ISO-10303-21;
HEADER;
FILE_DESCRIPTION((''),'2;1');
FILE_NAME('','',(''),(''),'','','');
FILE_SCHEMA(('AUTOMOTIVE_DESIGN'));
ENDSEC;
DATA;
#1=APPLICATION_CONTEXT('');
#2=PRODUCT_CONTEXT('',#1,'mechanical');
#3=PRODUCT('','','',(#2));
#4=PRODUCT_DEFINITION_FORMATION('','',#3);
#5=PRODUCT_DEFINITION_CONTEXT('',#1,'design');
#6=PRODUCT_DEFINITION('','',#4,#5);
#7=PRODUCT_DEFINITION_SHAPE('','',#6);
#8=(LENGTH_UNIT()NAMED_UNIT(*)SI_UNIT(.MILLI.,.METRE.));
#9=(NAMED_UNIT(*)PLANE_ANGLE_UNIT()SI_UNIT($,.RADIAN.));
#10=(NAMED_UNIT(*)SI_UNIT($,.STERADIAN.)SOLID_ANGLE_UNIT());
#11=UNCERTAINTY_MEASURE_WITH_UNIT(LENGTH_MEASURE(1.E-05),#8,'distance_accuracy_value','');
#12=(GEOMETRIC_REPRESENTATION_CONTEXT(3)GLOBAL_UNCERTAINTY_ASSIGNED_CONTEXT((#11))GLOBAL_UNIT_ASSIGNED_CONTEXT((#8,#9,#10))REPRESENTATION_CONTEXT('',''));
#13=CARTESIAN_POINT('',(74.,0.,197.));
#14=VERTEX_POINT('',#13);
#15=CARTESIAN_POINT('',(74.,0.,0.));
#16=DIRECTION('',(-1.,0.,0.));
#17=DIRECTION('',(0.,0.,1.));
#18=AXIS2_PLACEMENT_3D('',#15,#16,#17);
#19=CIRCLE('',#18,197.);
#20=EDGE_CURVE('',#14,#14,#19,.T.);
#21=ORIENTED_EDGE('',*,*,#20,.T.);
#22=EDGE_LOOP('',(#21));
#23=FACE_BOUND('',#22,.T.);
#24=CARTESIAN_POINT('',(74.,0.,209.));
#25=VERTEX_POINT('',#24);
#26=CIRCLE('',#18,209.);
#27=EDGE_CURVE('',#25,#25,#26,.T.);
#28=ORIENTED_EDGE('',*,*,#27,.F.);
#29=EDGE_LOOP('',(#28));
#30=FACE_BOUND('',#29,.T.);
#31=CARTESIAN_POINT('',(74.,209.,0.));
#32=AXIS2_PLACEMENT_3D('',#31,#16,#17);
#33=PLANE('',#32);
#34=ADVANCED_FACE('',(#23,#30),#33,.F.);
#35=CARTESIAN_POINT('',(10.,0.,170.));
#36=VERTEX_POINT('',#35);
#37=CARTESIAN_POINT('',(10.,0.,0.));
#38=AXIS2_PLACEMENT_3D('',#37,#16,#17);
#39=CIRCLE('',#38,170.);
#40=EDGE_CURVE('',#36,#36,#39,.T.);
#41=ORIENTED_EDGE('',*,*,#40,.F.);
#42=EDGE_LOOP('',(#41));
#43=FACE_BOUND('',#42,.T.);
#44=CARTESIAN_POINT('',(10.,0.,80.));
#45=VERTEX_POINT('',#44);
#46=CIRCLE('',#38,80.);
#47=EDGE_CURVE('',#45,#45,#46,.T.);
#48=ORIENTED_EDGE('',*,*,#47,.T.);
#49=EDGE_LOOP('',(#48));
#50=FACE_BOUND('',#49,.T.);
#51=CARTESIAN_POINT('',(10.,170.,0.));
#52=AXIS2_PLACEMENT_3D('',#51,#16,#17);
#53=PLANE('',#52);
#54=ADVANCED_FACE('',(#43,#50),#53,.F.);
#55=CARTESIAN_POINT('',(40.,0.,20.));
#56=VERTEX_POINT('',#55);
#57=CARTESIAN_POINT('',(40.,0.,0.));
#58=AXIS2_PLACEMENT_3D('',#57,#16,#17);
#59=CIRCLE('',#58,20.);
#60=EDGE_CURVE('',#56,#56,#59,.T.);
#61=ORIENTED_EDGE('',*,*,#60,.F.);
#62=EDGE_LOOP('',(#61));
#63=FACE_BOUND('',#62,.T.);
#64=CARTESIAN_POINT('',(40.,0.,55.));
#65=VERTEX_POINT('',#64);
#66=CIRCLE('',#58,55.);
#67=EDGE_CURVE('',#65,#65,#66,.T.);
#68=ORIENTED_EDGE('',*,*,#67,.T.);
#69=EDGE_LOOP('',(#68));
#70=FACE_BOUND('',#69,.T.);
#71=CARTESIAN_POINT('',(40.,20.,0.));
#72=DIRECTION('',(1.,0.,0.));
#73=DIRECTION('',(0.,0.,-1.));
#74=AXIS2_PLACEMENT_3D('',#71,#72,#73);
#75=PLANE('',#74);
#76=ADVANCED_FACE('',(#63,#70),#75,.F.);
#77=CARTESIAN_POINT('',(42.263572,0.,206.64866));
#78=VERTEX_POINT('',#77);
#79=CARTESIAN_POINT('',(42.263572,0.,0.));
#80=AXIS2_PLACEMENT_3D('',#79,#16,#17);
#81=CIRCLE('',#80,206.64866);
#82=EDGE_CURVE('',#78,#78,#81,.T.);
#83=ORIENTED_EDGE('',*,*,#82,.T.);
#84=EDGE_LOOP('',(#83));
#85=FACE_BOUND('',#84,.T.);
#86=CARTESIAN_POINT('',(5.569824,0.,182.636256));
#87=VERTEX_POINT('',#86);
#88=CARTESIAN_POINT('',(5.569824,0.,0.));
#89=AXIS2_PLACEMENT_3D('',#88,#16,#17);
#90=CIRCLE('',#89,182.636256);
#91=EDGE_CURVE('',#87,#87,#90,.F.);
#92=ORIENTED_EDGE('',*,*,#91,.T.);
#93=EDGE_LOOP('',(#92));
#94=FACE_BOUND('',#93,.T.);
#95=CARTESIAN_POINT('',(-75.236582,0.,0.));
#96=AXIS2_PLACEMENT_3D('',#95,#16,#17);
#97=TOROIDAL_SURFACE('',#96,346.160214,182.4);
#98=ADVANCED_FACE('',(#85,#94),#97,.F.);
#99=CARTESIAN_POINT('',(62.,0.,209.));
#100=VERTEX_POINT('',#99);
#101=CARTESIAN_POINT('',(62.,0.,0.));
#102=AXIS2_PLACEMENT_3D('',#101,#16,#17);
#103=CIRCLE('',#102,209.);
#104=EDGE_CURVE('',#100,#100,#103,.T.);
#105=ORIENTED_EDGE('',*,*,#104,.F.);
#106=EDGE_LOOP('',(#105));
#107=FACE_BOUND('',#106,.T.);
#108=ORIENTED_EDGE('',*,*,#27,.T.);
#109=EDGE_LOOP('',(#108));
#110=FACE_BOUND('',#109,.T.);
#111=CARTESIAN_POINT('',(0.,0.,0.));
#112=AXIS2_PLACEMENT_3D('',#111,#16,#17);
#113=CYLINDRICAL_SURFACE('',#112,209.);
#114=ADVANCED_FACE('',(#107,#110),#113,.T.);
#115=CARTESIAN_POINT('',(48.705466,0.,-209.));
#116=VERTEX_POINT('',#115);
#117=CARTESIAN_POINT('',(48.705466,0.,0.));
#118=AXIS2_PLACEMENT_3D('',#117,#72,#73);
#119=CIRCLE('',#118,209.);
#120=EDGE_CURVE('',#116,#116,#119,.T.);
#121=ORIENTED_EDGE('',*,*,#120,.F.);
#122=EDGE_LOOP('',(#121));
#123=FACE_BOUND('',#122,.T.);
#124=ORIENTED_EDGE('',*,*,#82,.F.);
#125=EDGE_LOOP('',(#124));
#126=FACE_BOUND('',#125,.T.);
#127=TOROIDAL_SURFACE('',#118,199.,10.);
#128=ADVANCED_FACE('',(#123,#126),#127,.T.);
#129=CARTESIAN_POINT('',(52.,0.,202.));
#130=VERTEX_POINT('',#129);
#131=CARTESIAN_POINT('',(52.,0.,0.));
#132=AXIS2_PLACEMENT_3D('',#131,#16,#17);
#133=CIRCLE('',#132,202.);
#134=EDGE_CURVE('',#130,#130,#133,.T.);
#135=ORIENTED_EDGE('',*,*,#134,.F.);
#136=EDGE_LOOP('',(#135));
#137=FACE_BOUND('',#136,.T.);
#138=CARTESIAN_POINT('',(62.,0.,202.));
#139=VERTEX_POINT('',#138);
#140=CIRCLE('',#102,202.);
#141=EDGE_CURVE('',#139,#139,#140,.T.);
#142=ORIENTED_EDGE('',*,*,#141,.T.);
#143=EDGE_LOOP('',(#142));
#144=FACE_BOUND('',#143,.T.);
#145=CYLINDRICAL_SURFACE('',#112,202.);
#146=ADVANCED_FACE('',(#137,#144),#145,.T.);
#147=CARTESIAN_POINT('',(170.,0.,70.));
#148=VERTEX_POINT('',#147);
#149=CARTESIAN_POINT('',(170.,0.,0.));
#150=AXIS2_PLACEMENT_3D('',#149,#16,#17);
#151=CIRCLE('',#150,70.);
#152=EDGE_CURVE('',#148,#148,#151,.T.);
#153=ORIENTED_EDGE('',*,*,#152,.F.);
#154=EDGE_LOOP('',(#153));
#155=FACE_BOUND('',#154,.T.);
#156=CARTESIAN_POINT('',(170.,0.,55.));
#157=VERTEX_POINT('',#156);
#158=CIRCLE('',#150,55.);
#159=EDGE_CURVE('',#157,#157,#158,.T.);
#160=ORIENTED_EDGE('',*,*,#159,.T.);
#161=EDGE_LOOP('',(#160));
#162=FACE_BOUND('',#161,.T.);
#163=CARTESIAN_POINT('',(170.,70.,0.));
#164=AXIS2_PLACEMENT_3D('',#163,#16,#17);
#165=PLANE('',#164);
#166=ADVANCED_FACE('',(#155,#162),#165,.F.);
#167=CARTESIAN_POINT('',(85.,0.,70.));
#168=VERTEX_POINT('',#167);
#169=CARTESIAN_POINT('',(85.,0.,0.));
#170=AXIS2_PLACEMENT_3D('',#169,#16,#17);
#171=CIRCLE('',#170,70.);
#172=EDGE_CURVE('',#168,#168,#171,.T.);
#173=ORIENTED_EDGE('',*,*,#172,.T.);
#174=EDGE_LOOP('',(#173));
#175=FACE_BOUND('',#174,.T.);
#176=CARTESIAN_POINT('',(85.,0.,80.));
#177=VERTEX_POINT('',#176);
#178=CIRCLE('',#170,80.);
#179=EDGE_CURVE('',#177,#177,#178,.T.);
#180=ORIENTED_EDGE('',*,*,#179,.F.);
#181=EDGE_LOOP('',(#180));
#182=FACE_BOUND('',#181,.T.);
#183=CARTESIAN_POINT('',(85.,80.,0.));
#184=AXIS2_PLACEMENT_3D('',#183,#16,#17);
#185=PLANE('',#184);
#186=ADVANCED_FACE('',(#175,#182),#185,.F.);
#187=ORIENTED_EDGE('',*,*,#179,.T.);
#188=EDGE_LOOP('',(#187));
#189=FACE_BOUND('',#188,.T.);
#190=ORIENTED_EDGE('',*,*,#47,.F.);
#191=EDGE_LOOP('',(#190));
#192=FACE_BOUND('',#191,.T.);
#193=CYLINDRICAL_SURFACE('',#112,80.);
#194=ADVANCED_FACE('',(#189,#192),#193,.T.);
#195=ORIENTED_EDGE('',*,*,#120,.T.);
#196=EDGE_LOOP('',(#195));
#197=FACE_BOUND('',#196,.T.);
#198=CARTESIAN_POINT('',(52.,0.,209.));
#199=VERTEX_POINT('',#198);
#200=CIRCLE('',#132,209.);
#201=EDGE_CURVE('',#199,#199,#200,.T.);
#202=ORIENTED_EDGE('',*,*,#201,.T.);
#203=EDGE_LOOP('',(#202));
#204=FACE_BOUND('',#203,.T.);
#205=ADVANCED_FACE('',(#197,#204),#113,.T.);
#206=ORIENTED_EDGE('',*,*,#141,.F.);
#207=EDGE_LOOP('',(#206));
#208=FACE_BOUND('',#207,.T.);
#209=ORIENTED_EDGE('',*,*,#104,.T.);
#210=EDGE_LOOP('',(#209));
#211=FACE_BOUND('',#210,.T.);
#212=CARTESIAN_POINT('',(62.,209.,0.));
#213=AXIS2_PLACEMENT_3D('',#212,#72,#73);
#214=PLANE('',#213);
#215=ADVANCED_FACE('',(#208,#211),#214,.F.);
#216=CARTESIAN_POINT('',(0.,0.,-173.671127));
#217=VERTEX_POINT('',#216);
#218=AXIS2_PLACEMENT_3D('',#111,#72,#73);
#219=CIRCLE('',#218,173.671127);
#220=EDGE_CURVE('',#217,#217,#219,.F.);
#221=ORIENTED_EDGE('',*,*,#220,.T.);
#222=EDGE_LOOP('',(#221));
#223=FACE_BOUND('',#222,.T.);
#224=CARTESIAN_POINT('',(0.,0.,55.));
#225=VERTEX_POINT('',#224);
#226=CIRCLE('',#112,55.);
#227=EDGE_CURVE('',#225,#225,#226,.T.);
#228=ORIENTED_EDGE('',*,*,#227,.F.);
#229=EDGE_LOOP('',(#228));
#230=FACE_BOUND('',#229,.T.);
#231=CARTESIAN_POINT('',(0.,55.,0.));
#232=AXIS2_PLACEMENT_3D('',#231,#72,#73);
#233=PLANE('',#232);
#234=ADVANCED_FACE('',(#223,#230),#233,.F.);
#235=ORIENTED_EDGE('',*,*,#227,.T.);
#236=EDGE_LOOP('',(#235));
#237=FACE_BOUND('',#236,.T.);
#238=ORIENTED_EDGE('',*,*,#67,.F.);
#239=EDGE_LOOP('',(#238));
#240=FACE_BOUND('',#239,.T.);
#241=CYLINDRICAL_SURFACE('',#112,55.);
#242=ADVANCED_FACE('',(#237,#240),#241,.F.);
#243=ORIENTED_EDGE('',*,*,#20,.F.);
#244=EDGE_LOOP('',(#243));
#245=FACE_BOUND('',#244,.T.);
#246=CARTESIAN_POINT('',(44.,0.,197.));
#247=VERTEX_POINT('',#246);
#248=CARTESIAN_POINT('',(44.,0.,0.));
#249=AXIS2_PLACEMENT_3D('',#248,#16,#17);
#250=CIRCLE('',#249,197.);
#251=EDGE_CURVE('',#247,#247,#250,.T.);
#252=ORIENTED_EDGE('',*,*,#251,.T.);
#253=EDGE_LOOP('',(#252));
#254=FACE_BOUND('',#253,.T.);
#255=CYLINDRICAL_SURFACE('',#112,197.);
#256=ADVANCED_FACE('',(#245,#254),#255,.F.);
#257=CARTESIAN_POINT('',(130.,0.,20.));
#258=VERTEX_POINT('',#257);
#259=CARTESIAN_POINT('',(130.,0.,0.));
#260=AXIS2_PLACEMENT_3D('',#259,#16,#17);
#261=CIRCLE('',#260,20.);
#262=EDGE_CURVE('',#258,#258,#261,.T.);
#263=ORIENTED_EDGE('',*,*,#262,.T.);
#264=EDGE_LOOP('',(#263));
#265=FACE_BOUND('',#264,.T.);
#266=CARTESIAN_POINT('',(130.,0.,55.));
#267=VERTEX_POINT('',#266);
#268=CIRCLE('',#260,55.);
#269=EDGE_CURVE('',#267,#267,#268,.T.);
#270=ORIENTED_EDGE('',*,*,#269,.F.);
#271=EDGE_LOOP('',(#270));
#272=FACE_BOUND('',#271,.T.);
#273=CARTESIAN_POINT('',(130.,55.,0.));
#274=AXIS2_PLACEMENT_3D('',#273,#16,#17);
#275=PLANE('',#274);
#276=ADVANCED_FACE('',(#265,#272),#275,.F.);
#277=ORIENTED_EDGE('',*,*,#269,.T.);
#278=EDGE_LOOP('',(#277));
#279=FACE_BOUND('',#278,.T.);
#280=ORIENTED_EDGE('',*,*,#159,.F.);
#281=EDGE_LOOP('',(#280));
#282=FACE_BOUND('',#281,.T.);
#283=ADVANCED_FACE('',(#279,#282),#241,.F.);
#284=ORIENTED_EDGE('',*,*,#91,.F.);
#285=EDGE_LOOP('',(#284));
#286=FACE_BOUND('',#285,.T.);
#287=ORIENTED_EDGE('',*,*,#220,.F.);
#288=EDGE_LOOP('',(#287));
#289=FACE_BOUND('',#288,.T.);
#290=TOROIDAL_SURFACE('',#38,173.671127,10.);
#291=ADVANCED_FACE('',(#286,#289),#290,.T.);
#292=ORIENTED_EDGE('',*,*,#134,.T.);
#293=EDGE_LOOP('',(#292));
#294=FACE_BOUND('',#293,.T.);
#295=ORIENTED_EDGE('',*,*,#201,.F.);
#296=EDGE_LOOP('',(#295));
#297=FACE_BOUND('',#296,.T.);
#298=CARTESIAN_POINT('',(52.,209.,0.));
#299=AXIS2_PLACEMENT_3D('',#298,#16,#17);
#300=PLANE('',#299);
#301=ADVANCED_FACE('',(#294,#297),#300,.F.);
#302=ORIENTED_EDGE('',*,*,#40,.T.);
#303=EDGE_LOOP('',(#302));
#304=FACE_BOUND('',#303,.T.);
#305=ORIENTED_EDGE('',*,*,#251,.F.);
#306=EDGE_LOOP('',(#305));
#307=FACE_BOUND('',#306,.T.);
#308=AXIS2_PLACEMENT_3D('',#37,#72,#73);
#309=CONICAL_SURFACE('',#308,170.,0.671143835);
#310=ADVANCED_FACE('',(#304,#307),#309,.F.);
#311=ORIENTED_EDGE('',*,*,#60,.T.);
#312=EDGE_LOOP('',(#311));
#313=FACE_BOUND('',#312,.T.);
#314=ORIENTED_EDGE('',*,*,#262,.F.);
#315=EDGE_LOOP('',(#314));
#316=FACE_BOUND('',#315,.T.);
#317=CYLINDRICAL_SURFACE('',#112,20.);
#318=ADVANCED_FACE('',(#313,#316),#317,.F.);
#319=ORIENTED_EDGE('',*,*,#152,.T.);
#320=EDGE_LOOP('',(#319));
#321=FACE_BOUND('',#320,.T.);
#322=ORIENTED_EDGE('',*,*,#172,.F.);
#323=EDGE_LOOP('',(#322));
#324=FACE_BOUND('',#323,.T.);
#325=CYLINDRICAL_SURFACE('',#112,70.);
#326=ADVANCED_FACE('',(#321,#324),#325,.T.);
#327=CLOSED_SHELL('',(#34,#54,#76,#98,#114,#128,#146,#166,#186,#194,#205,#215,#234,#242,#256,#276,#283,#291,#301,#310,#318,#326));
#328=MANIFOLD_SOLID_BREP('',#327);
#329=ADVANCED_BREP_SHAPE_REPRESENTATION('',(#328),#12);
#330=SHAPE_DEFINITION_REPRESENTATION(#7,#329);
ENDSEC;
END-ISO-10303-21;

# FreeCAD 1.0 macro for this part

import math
import FreeCAD as App
import Part
import Sketcher

V = App.Vector


def edges_at(feature, points):
    """Names of the edges that pass closest to the given points."""
    edges = feature.Shape.Edges
    near = lambda p: min(range(len(edges)), key=lambda i: edges[i].distToShape(Part.Vertex(*p))[0])
    return sorted({f"Edge{near(p) + 1}" for p in points})

doc = App.newDocument("Part")
body = doc.addObject("PartDesign::Body", "Body")

sketch1 = doc.addObject("Sketcher::SketchObject", "Sketch")
body.addObject(sketch1)
sketch1.AttachmentSupport = (doc.XY_Plane, [""])
sketch1.MapMode = "FlatFace"
sketch1.addGeometry(Part.LineSegment(V(130, 55, 0), V(170, 55, 0)), False)
sketch1.addGeometry(Part.LineSegment(V(170, 55, 0), V(170, 70, 0)), False)
sketch1.addGeometry(Part.LineSegment(V(170, 70, 0), V(85, 70, 0)), False)
sketch1.addGeometry(Part.LineSegment(V(85, 70, 0), V(85, 80, 0)), False)
sketch1.addGeometry(Part.LineSegment(V(85, 80, 0), V(10, 80, 0)), False)
sketch1.addGeometry(Part.LineSegment(V(10, 80, 0), V(10, 170, 0)), False)
sketch1.addGeometry(Part.LineSegment(V(10, 170, 0), V(44, 197, 0)), False)
sketch1.addGeometry(Part.LineSegment(V(44, 197, 0), V(74, 197, 0)), False)
sketch1.addGeometry(Part.LineSegment(V(74, 197, 0), V(74, 209, 0)), False)
sketch1.addGeometry(Part.LineSegment(V(74, 209, 0), V(62, 209, 0)), False)
sketch1.addGeometry(Part.LineSegment(V(62, 209, 0), V(62, 202, 0)), False)
sketch1.addGeometry(Part.LineSegment(V(62, 202, 0), V(52, 202, 0)), False)
sketch1.addGeometry(Part.LineSegment(V(52, 202, 0), V(52, 209, 0)), False)
sketch1.addGeometry(Part.LineSegment(V(52, 209, 0), V(45, 209, 0)), False)
sketch1.addGeometry(Part.ArcOfCircle(Part.Circle(V(-75, 346, 0), V(0, 0, 1), 182), math.radians(-65.64), math.radians(-48.76)), False)
sketch1.addGeometry(Part.LineSegment(V(0, 180, 0), V(0, 55, 0)), False)
sketch1.addGeometry(Part.LineSegment(V(0, 55, 0), V(40, 55, 0)), False)
sketch1.addGeometry(Part.LineSegment(V(40, 55, 0), V(40, 20, 0)), False)
sketch1.addGeometry(Part.LineSegment(V(40, 20, 0), V(130, 20, 0)), False)
sketch1.addGeometry(Part.LineSegment(V(130, 20, 0), V(130, 55, 0)), False)
sketch1.addConstraint(Sketcher.Constraint("Coincident", 0, 2, 1, 1))
sketch1.addConstraint(Sketcher.Constraint("Coincident", 1, 2, 2, 1))
sketch1.addConstraint(Sketcher.Constraint("Coincident", 2, 2, 3, 1))
sketch1.addConstraint(Sketcher.Constraint("Coincident", 3, 2, 4, 1))
sketch1.addConstraint(Sketcher.Constraint("Coincident", 4, 2, 5, 1))
sketch1.addConstraint(Sketcher.Constraint("Coincident", 5, 2, 6, 1))
sketch1.addConstraint(Sketcher.Constraint("Coincident", 6, 2, 7, 1))
sketch1.addConstraint(Sketcher.Constraint("Coincident", 7, 2, 8, 1))
sketch1.addConstraint(Sketcher.Constraint("Coincident", 8, 2, 9, 1))
sketch1.addConstraint(Sketcher.Constraint("Coincident", 9, 2, 10, 1))
sketch1.addConstraint(Sketcher.Constraint("Coincident", 10, 2, 11, 1))
sketch1.addConstraint(Sketcher.Constraint("Coincident", 11, 2, 12, 1))
sketch1.addConstraint(Sketcher.Constraint("Coincident", 12, 2, 13, 1))
sketch1.addConstraint(Sketcher.Constraint("Coincident", 13, 2, 14, 2))
sketch1.addConstraint(Sketcher.Constraint("Coincident", 14, 1, 15, 1))
sketch1.addConstraint(Sketcher.Constraint("Coincident", 15, 2, 16, 1))
sketch1.addConstraint(Sketcher.Constraint("Coincident", 16, 2, 17, 1))
sketch1.addConstraint(Sketcher.Constraint("Coincident", 17, 2, 18, 1))
sketch1.addConstraint(Sketcher.Constraint("Coincident", 18, 2, 19, 1))
sketch1.addConstraint(Sketcher.Constraint("Coincident", 19, 2, 0, 1))
sketch1.addConstraint(Sketcher.Constraint("Horizontal", 0))
sketch1.addConstraint(Sketcher.Constraint("Vertical", 1))
sketch1.addConstraint(Sketcher.Constraint("Horizontal", 2))
sketch1.addConstraint(Sketcher.Constraint("Vertical", 3))
sketch1.addConstraint(Sketcher.Constraint("Horizontal", 4))
sketch1.addConstraint(Sketcher.Constraint("Vertical", 5))
sketch1.addConstraint(Sketcher.Constraint("Horizontal", 7))
sketch1.addConstraint(Sketcher.Constraint("Vertical", 8))
sketch1.addConstraint(Sketcher.Constraint("Horizontal", 9))
sketch1.addConstraint(Sketcher.Constraint("Vertical", 10))
sketch1.addConstraint(Sketcher.Constraint("Horizontal", 11))
sketch1.addConstraint(Sketcher.Constraint("Vertical", 12))
sketch1.addConstraint(Sketcher.Constraint("Horizontal", 13))
sketch1.addConstraint(Sketcher.Constraint("Vertical", 15))
sketch1.addConstraint(Sketcher.Constraint("Horizontal", 16))
sketch1.addConstraint(Sketcher.Constraint("Vertical", 17))
sketch1.addConstraint(Sketcher.Constraint("Horizontal", 18))
sketch1.addConstraint(Sketcher.Constraint("Vertical", 19))
sketch1.addConstraint(Sketcher.Constraint("PointOnObject", 14, 1, -2))
sketch1.addConstraint(Sketcher.Constraint("Horizontal", 9, 2, 12, 2))
sketch1.addConstraint(Sketcher.Constraint("Horizontal", 0, 2, 15, 2))
sketch1.addConstraint(Sketcher.Constraint("Equal", 0, 16))
sketch1.addConstraint(Sketcher.Constraint("Equal", 11, 3))
sketch1.addConstraint(Sketcher.Constraint("Equal", 18, 5))
sketch1.addConstraint(Sketcher.Constraint("Equal", 9, 8))
sketch1.addConstraint(Sketcher.Constraint("Equal", 13, 10))
sketch1.addConstraint(Sketcher.Constraint("Radius", 14, 182.4))
sketch1.addConstraint(Sketcher.Constraint("DistanceX", 0, 1, 0, 2, 40.0))
sketch1.addConstraint(Sketcher.Constraint("DistanceX", 2, 2, 2, 1, 85.0))
sketch1.addConstraint(Sketcher.Constraint("DistanceX", 4, 2, 4, 1, 75.0))
sketch1.addConstraint(Sketcher.Constraint("DistanceX", 7, 1, 7, 2, 30.0))
sketch1.addConstraint(Sketcher.Constraint("DistanceX", 9, 2, 9, 1, 12.0))
sketch1.addConstraint(Sketcher.Constraint("DistanceX", 11, 2, 11, 1, 10.0))
sketch1.addConstraint(Sketcher.Constraint("DistanceX", 13, 2, 13, 1, 7.0))
sketch1.addConstraint(Sketcher.Constraint("DistanceX", 18, 1, 18, 2, 90.0))
sketch1.addConstraint(Sketcher.Constraint("DistanceY", 1, 1, 1, 2, 15.0))
sketch1.addConstraint(Sketcher.Constraint("DistanceY", 15, 2, 15, 1, 125.0))
sketch1.addConstraint(Sketcher.Constraint("DistanceY", 17, 2, 17, 1, 35.0))
sketch1.addConstraint(Sketcher.Constraint("DistanceY", -1, 1, 0, 2, 55.0))
sketch1.addConstraint(Sketcher.Constraint("DistanceX", -1, 1, 6, 2, 44.0))
sketch1.addConstraint(Sketcher.Constraint("DistanceY", -1, 1, 6, 2, 197.0))
revolution = doc.addObject("PartDesign::Revolution", "Revolution")
body.addObject(revolution)
revolution.Profile = sketch1
revolution.ReferenceAxis = (sketch1, ["H_Axis"])
revolution.Angle = 360
doc.recompute()

fillet = doc.addObject("PartDesign::Fillet", "Fillet")
body.addObject(fillet)
fillet.Base = (revolution, edges_at(revolution, [(0, 0, -180), (45, 0, -209)]))
fillet.Radius = 10

doc.recompute()
